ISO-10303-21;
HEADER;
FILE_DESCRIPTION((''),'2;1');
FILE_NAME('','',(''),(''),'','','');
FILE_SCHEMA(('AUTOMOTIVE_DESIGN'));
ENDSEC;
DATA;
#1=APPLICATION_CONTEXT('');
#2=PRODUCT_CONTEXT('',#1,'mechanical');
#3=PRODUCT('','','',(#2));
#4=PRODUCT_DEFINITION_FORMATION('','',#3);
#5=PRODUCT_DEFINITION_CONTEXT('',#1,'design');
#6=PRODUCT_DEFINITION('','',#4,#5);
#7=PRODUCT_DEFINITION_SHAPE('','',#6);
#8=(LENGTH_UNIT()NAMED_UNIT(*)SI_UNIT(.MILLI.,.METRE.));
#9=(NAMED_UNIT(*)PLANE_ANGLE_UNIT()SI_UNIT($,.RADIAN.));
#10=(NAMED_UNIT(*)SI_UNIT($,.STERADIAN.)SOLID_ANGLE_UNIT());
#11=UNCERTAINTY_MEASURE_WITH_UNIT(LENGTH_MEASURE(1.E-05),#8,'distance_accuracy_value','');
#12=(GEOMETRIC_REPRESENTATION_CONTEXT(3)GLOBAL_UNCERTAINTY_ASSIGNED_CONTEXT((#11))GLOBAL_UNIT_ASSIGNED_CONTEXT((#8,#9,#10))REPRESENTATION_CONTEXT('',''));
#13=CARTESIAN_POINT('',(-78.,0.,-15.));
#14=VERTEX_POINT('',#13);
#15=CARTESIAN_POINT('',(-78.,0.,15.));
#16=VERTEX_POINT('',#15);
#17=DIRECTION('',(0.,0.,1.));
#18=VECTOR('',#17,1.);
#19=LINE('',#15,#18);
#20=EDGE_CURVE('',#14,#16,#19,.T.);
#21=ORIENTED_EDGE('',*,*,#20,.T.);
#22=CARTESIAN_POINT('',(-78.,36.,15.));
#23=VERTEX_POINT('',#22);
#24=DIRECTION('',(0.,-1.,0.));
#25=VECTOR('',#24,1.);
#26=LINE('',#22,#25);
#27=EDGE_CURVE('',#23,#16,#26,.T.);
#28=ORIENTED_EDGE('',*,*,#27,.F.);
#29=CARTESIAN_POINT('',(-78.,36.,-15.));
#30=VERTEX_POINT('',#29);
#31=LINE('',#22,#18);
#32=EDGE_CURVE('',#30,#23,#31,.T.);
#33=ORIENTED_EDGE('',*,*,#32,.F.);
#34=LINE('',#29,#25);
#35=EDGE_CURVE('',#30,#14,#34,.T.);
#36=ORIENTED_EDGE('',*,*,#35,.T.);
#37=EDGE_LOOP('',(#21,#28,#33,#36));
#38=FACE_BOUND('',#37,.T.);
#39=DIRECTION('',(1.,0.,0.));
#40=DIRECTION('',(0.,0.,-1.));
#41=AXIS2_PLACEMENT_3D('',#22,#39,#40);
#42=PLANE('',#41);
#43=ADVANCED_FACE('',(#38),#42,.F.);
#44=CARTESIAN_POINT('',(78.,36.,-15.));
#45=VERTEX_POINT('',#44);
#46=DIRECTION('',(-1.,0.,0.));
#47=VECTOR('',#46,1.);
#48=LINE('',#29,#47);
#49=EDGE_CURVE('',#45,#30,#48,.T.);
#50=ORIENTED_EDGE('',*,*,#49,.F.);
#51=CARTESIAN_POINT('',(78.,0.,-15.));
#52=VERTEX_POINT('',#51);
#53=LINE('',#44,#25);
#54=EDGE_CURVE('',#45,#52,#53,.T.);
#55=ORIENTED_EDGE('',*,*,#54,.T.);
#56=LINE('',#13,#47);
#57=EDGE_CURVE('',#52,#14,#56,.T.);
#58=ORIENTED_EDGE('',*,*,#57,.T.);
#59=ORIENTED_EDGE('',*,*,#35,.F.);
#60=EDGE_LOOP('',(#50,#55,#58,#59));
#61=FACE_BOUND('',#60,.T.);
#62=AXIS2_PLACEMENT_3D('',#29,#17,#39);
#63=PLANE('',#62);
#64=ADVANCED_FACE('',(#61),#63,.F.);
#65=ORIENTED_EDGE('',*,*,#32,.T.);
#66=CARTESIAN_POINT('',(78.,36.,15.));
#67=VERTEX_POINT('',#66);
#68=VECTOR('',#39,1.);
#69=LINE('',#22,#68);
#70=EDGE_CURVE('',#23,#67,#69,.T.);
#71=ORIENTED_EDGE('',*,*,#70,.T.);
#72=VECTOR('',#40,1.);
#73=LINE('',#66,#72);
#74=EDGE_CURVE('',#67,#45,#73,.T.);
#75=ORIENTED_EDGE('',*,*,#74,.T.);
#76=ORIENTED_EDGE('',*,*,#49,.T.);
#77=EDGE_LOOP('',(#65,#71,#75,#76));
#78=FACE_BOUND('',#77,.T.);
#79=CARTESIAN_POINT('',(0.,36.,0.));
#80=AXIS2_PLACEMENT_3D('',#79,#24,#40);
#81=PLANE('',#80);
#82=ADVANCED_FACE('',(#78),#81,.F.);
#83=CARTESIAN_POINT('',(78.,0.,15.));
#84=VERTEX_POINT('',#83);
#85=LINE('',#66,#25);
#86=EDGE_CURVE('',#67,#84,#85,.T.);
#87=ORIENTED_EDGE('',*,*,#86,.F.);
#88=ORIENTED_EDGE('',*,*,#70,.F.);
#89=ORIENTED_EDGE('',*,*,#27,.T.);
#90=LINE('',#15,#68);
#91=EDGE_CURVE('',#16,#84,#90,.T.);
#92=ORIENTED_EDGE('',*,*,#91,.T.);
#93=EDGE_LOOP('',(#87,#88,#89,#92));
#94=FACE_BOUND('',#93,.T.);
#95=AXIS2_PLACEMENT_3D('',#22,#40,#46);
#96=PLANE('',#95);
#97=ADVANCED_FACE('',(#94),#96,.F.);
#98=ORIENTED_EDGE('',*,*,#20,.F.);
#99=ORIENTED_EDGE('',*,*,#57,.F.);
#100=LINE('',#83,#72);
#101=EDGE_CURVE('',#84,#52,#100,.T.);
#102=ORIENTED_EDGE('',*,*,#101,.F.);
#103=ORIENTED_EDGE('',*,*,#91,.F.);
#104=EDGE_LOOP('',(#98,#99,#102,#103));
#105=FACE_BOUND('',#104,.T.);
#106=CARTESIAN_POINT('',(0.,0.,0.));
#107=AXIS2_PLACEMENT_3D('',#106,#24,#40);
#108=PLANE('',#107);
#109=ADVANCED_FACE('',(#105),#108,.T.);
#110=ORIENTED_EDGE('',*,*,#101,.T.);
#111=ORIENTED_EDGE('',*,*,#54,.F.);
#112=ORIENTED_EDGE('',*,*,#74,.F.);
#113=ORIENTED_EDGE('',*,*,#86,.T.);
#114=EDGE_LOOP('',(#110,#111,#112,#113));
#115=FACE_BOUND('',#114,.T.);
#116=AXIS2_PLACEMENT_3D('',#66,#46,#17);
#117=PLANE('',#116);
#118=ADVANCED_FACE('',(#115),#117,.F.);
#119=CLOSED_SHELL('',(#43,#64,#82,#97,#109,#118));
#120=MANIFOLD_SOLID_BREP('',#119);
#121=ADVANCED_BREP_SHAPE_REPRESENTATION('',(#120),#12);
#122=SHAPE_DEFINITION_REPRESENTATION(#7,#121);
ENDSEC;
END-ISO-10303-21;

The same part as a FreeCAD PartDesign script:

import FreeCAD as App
import Part
import Sketcher
from FreeCAD import Vector


def add_polygon(sketch, points):
    """Adds a closed chain of lines whose ends are joined by coincident constraints."""
    first, n = sketch.GeometryCount, len(points)
    for a, b in zip(points, points[1:] + points[:1]):
        sketch.addGeometry(Part.LineSegment(App.Vector(*a, 0), App.Vector(*b, 0)), False)
    for i in range(n):
        sketch.addConstraint(Sketcher.Constraint("Coincident", first + i, 2, first + (i + 1) % n, 1))

doc = App.newDocument("Part")
body = doc.addObject("PartDesign::Body", "Body")

# Sketch on XZ plane
sketch1 = body.newObject("Sketcher::SketchObject", "Sketch")
sketch1.AttachmentSupport = (doc.getObject("XZ_Plane"), [""])
sketch1.MapMode = "FlatFace"
add_polygon(sketch1, [(-78, -15), (-78, 15), (78, 15), (78, -15)])  # lines 0-3
sketch1.addConstraint([
    Sketcher.Constraint("Vertical", 0),
    Sketcher.Constraint("Horizontal", 1),
    Sketcher.Constraint("Vertical", 2),
    Sketcher.Constraint("Horizontal", 3),
    Sketcher.Constraint("Symmetric", 0, 2, 2, 2, -1, 1),
    Sketcher.Constraint("DistanceX", 1, 1, 1, 2, 156.0),
    Sketcher.Constraint("DistanceY", 0, 1, 0, 2, 30.0),
])
pad1 = body.newObject("PartDesign::Pad", "Pad")
pad1.Profile = sketch1
pad1.Length = 36
pad1.Reversed = True

doc.recompute()
